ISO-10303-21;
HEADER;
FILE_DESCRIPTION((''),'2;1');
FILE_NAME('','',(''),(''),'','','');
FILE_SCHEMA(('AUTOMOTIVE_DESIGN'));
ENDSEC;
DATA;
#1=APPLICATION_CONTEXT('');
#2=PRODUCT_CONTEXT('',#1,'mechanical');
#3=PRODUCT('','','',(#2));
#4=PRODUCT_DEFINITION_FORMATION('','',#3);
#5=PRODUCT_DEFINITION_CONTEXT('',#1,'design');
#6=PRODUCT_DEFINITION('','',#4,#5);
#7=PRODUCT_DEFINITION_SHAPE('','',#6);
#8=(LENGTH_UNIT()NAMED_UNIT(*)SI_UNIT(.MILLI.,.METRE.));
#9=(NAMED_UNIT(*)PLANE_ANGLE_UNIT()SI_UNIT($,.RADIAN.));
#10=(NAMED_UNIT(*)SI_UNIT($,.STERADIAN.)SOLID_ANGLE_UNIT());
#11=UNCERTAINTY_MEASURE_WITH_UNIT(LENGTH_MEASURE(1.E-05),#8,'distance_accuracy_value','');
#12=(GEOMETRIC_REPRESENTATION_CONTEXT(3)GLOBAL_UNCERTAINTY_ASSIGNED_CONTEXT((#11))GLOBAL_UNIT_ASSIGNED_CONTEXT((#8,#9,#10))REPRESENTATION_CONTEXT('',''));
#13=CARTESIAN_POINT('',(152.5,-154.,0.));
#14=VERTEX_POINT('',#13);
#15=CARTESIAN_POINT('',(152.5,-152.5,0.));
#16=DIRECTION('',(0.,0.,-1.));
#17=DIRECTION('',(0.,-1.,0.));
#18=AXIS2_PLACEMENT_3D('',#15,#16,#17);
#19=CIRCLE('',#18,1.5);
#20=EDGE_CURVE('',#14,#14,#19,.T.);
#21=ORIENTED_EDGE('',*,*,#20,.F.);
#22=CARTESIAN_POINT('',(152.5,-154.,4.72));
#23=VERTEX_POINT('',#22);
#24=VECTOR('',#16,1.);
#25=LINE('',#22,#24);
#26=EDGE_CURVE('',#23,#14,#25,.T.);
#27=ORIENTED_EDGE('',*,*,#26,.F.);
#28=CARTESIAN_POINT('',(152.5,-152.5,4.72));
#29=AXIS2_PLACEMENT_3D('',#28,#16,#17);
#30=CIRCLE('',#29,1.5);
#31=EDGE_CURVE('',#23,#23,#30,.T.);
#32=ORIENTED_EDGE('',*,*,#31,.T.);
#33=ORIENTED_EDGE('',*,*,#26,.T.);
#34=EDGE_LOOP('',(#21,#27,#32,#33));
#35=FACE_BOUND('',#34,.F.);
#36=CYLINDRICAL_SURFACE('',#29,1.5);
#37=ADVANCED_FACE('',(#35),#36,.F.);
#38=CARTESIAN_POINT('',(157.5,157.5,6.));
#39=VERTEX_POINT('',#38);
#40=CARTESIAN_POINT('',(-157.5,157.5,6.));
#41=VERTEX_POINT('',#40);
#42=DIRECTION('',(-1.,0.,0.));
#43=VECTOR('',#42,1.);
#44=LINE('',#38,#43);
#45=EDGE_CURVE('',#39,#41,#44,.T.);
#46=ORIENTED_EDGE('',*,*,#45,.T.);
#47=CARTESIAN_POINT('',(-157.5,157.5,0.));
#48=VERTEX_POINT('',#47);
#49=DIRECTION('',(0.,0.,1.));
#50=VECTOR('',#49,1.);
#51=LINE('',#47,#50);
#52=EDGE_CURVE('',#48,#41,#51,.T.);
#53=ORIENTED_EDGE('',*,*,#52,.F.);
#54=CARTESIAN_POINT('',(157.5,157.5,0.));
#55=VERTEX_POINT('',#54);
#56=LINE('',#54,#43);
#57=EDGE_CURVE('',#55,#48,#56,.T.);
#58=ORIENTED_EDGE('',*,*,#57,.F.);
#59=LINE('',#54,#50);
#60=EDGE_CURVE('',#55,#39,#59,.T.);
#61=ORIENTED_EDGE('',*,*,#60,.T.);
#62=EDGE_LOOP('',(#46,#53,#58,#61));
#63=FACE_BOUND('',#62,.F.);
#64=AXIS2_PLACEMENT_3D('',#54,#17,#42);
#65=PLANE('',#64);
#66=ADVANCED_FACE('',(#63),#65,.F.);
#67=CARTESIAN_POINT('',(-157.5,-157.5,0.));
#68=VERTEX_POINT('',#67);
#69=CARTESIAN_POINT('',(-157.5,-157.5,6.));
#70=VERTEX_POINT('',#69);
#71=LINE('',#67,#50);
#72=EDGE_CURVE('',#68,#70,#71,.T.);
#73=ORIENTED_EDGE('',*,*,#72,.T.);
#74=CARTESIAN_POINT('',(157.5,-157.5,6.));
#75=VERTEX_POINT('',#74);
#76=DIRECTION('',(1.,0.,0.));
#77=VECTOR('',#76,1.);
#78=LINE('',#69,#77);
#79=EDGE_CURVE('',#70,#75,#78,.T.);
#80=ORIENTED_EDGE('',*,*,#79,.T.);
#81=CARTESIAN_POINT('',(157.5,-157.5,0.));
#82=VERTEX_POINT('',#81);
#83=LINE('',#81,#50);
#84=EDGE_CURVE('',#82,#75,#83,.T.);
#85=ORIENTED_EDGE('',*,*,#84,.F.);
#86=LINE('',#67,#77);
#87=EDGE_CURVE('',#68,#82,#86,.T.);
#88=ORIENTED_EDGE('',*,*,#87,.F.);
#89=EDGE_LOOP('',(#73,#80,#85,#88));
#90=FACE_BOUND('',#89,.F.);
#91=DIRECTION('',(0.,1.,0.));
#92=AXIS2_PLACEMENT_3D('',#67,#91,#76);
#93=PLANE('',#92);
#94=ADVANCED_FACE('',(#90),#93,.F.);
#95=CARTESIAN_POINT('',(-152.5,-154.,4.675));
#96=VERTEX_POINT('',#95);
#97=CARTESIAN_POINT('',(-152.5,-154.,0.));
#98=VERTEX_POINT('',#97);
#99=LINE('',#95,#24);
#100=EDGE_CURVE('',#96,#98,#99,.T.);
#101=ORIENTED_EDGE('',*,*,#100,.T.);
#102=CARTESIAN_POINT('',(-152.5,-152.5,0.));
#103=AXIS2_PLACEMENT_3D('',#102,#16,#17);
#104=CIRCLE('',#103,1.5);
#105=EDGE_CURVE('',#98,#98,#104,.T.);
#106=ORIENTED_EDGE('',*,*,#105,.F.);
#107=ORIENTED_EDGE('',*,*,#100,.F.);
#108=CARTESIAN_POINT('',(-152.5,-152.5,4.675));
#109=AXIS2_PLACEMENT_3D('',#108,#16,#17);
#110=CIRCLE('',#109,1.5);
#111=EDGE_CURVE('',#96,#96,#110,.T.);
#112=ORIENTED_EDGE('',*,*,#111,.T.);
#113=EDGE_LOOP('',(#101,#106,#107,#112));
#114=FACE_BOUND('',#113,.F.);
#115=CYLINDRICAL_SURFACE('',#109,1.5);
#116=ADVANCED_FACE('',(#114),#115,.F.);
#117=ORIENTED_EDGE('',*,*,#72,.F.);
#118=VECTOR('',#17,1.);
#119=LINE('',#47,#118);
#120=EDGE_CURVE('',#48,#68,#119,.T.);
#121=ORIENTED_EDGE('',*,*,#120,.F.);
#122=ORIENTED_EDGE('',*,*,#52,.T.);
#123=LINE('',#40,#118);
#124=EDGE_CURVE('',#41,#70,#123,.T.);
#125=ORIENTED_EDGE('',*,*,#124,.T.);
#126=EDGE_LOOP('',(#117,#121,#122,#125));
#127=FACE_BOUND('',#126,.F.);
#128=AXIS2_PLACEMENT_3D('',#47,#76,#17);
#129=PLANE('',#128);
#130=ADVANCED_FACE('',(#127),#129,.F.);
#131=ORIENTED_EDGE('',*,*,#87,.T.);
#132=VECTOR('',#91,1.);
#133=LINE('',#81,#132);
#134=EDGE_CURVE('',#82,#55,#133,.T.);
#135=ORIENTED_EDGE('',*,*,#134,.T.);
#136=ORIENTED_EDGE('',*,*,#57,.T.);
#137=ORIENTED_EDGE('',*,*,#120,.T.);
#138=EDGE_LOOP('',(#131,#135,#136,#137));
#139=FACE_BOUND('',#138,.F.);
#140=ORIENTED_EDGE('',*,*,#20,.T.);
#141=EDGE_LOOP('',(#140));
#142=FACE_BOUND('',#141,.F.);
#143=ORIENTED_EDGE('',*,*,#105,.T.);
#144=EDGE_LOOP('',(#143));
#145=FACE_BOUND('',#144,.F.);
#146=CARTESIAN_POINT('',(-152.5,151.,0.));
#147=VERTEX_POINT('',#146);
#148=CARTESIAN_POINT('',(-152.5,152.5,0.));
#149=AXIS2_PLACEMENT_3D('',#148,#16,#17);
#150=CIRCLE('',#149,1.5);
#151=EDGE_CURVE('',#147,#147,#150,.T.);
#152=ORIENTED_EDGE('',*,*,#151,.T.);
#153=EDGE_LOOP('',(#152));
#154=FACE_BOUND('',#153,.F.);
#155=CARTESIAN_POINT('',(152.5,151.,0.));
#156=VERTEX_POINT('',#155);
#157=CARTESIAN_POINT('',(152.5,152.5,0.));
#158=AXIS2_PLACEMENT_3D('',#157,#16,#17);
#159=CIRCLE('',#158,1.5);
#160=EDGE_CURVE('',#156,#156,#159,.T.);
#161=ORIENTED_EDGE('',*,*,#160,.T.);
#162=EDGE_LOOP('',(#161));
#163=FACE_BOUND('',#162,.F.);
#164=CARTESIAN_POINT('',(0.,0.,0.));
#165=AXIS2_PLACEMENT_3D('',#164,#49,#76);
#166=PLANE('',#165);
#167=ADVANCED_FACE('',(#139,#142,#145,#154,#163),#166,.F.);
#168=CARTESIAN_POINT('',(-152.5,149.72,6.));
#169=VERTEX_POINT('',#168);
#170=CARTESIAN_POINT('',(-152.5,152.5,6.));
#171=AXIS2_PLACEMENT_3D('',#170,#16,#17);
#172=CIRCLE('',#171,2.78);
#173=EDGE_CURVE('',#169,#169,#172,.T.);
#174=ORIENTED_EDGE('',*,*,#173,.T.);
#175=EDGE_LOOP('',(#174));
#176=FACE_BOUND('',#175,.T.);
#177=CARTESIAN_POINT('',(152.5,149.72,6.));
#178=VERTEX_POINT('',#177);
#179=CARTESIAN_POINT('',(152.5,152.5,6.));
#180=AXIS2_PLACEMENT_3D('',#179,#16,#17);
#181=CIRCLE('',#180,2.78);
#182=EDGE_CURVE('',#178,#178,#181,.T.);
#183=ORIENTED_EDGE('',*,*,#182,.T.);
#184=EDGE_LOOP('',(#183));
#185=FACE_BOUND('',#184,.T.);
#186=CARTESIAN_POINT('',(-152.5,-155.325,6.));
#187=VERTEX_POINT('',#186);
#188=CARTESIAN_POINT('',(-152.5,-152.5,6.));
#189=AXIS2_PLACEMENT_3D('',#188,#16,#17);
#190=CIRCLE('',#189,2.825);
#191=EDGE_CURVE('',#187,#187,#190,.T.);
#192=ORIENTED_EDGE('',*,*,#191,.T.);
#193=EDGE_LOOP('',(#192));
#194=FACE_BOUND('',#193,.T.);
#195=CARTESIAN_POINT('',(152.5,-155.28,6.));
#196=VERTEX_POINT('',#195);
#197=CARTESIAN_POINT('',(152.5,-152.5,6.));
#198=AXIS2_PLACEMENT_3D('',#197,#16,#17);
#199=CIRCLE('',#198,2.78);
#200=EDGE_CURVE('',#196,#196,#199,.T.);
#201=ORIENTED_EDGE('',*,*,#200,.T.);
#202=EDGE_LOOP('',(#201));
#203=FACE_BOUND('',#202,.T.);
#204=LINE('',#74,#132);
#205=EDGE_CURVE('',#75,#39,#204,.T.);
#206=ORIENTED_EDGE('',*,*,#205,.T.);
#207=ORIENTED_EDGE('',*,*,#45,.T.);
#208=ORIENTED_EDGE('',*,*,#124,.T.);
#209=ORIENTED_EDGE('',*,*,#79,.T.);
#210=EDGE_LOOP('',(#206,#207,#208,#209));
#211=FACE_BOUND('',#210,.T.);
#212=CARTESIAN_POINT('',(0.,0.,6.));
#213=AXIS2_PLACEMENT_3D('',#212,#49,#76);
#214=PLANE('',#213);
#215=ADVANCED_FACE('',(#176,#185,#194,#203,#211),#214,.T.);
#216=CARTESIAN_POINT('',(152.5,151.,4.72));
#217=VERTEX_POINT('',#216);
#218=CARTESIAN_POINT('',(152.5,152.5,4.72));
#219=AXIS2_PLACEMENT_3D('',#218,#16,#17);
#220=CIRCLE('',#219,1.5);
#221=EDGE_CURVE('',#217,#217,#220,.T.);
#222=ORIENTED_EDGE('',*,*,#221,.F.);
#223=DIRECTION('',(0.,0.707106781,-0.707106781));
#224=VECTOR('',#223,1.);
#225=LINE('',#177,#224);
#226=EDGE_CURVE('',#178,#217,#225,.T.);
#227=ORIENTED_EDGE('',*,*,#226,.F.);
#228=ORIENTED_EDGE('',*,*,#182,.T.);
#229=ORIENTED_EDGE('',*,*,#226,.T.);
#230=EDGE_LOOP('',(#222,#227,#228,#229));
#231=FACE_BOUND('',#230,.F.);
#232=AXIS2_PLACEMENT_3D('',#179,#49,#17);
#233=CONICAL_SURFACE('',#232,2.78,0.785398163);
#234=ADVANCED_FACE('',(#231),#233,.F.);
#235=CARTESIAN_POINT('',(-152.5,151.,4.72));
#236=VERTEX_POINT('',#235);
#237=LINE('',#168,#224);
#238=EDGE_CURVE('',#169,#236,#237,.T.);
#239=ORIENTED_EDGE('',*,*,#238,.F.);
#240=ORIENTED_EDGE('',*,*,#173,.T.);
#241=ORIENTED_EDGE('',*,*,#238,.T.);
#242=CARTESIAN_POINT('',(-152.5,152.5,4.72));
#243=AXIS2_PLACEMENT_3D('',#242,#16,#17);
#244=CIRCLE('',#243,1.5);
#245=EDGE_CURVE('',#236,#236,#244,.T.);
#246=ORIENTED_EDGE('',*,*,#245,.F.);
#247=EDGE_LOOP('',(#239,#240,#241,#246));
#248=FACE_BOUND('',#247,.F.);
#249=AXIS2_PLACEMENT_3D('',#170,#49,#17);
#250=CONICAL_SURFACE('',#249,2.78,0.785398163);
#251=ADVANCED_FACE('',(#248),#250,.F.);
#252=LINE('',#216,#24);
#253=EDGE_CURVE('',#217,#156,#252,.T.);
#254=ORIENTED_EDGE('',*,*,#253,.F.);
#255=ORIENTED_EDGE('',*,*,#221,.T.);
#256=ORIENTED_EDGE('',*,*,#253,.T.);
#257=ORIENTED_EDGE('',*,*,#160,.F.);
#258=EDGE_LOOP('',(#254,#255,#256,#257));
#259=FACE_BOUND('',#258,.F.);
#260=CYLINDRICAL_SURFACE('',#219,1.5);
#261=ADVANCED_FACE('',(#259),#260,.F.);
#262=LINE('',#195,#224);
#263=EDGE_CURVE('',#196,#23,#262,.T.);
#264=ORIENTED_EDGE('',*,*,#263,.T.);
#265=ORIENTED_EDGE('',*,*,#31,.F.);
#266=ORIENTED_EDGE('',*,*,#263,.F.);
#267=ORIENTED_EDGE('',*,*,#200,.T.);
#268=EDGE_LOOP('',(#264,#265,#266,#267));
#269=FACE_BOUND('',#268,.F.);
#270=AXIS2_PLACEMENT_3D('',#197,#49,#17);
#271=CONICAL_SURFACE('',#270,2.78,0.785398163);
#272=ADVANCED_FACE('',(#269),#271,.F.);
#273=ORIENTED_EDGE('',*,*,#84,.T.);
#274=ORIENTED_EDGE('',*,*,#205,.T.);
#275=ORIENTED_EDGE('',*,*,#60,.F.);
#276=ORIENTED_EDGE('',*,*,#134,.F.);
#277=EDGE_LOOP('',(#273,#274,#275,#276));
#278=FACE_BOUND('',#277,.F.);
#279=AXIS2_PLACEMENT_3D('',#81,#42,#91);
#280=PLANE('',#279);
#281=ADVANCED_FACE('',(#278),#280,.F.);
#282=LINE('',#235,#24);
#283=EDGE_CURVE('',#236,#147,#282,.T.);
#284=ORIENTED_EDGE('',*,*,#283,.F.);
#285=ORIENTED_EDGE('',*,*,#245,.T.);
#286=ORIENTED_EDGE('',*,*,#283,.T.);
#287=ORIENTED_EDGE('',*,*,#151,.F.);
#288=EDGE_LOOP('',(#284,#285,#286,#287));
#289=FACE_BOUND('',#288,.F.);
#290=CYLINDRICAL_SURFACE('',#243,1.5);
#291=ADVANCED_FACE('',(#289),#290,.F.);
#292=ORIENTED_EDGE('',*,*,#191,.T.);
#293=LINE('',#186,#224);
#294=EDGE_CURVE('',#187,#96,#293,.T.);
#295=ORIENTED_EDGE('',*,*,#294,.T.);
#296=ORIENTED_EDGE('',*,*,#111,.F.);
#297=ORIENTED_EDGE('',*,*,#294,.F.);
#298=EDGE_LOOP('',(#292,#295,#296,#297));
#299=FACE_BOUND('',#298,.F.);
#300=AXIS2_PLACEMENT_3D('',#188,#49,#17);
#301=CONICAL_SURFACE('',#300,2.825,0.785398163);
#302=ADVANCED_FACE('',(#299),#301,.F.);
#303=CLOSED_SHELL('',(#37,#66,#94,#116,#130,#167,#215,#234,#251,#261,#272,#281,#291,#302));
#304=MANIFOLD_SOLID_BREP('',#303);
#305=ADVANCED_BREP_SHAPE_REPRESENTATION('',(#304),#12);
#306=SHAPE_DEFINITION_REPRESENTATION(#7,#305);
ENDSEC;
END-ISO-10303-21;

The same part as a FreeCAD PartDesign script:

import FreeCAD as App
import Part
import Sketcher
from FreeCAD import Vector
Q = App.Units.Quantity

doc = App.newDocument("Part")
params = doc.addObject("Spreadsheet::Sheet", "Params")
for row, (alias, value) in enumerate([
    ("sketch1_width", "315 mm"),
    ("pad1_length", "6 mm"),
    ("sketch2_diameter", "3 mm"),
    ("hole_diameter", "3 mm"),
    ("hole_csink_diameter", "5.65 mm"),
    ("sketch3_diameter", "3 mm"),
    ("hole2_diameter", "3 mm"),
    ("hole2_csink_diameter", "5.56 mm"),
    ("sketch4_diameter", "3 mm"),
    ("hole3_diameter", "3 mm"),
    ("hole3_csink_diameter", "5.56 mm"),
    ("sketch5_diameter", "3 mm"),
    ("hole4_diameter", "3 mm"),
    ("hole4_csink_diameter", "5.56 mm"),
], start=1):
    params.set(f"A{row}", alias)
    params.set(f"B{row}", "=" + value)
    params.setAlias(f"B{row}", alias)

body = doc.addObject("PartDesign::Body", "Body")

# Sketch on XY plane
sketch1 = body.newObject("Sketcher::SketchObject", "Sketch")
sketch1.AttachmentSupport = (doc.getObject("XY_Plane"), [""])
sketch1.MapMode = "FlatFace"
sketch1.addGeometry(Part.LineSegment(Vector(-157.5, 157.5, 0), Vector(-157.5, -157.5, 0)), False)
sketch1.addGeometry(Part.LineSegment(Vector(-157.5, -157.5, 0), Vector(157.5, -157.5, 0)), False)
sketch1.addGeometry(Part.LineSegment(Vector(157.5, -157.5, 0), Vector(157.5, 157.5, 0)), False)
sketch1.addGeometry(Part.LineSegment(Vector(157.5, 157.5, 0), Vector(-157.5, 157.5, 0)), False)
sketch1.addConstraint(Sketcher.Constraint("Coincident", 0, 2, 1, 1))
sketch1.addConstraint(Sketcher.Constraint("Coincident", 1, 2, 2, 1))
sketch1.addConstraint(Sketcher.Constraint("Coincident", 2, 2, 3, 1))
sketch1.addConstraint(Sketcher.Constraint("Coincident", 3, 2, 0, 1))
sketch1.addConstraint(Sketcher.Constraint("Vertical", 0))
sketch1.addConstraint(Sketcher.Constraint("Horizontal", 1))
sketch1.addConstraint(Sketcher.Constraint("Vertical", 2))
sketch1.addConstraint(Sketcher.Constraint("Horizontal", 3))
sketch1.addConstraint(Sketcher.Constraint("Symmetric", 0, 2, 2, 2, -1, 1))
sketch1.addConstraint(Sketcher.Constraint("Equal", 3, 0))
sketch1.addConstraint(Sketcher.Constraint("DistanceX", 1, 1, 1, 2, Q("315 mm")))
sketch1.setExpression("Constraints[10]", "Params.sketch1_width")
pad1 = body.newObject("PartDesign::Pad", "Pad")
pad1.Profile = sketch1
pad1.setExpression("Length", "Params.pad1_length")

# Sketch on XY plane
sketch2 = body.newObject("Sketcher::SketchObject", "Sketch001")
sketch2.AttachmentSupport = (doc.getObject("XY_Plane"), [""])
sketch2.MapMode = "FlatFace"
sketch2.AttachmentOffset = App.Placement(Vector(0, 0, 6), App.Rotation())
sketch2.addGeometry(Part.Circle(Vector(-152.5, -152.5, 0), Vector(0, 0, 1), 1.5), False)
sketch2.addConstraint(Sketcher.Constraint("Diameter", 0, Q("3 mm")))
sketch2.addConstraint(Sketcher.Constraint("DistanceX", 0, 3, -1, 1, Q("152.5 mm")))
sketch2.addConstraint(Sketcher.Constraint("DistanceY", 0, 3, -1, 1, Q("152.5 mm")))
sketch2.setExpression("Constraints[0]", "Params.sketch2_diameter")
doc.recompute()
hole = body.newObject("PartDesign::Hole", "Hole")
hole.Profile = sketch2
hole.ThreadType = "None"
hole.setExpression("Diameter", "Params.hole_diameter")
hole.DepthType = "ThroughAll"
hole.HoleCutType = "Countersink"
hole.setExpression("HoleCutDiameter", "Params.hole_csink_diameter")
hole.HoleCutCountersinkAngle = 90

# Sketch on XY plane
sketch3 = body.newObject("Sketcher::SketchObject", "Sketch002")
sketch3.AttachmentSupport = (doc.getObject("XY_Plane"), [""])
sketch3.MapMode = "FlatFace"
sketch3.AttachmentOffset = App.Placement(Vector(0, 0, 6), App.Rotation())
sketch3.addGeometry(Part.Circle(Vector(152.5, -152.5, 0), Vector(0, 0, 1), 1.5), False)
sketch3.addConstraint(Sketcher.Constraint("Diameter", 0, Q("3 mm")))
sketch3.addConstraint(Sketcher.Constraint("DistanceX", -1, 1, 0, 3, Q("152.5 mm")))
sketch3.addConstraint(Sketcher.Constraint("DistanceY", 0, 3, -1, 1, Q("152.5 mm")))
sketch3.setExpression("Constraints[0]", "Params.sketch3_diameter")
doc.recompute()
hole2 = body.newObject("PartDesign::Hole", "Hole001")
hole2.Profile = sketch3
hole2.ThreadType = "None"
hole2.setExpression("Diameter", "Params.hole2_diameter")
hole2.DepthType = "ThroughAll"
hole2.HoleCutType = "Countersink"
hole2.setExpression("HoleCutDiameter", "Params.hole2_csink_diameter")
hole2.HoleCutCountersinkAngle = 90

# Sketch on XY plane
sketch4 = body.newObject("Sketcher::SketchObject", "Sketch003")
sketch4.AttachmentSupport = (doc.getObject("XY_Plane"), [""])
sketch4.MapMode = "FlatFace"
sketch4.AttachmentOffset = App.Placement(Vector(0, 0, 6), App.Rotation())
sketch4.addGeometry(Part.Circle(Vector(152.5, 152.5, 0), Vector(0, 0, 1), 1.5), False)
sketch4.addConstraint(Sketcher.Constraint("Diameter", 0, Q("3 mm")))
sketch4.addConstraint(Sketcher.Constraint("DistanceX", -1, 1, 0, 3, Q("152.5 mm")))
sketch4.addConstraint(Sketcher.Constraint("DistanceY", -1, 1, 0, 3, Q("152.5 mm")))
sketch4.setExpression("Constraints[0]", "Params.sketch4_diameter")
doc.recompute()
hole3 = body.newObject("PartDesign::Hole", "Hole002")
hole3.Profile = sketch4
hole3.ThreadType = "None"
hole3.setExpression("Diameter", "Params.hole3_diameter")
hole3.DepthType = "ThroughAll"
hole3.HoleCutType = "Countersink"
hole3.setExpression("HoleCutDiameter", "Params.hole3_csink_diameter")
hole3.HoleCutCountersinkAngle = 90

# Sketch on XY plane
sketch5 = body.newObject("Sketcher::SketchObject", "Sketch004")
sketch5.AttachmentSupport = (doc.getObject("XY_Plane"), [""])
sketch5.MapMode = "FlatFace"
sketch5.AttachmentOffset = App.Placement(Vector(0, 0, 6), App.Rotation())
sketch5.addGeometry(Part.Circle(Vector(-152.5, 152.5, 0), Vector(0, 0, 1), 1.5), False)
sketch5.addConstraint(Sketcher.Constraint("Diameter", 0, Q("3 mm")))
sketch5.addConstraint(Sketcher.Constraint("DistanceX", 0, 3, -1, 1, Q("152.5 mm")))
sketch5.addConstraint(Sketcher.Constraint("DistanceY", -1, 1, 0, 3, Q("152.5 mm")))
sketch5.setExpression("Constraints[0]", "Params.sketch5_diameter")
doc.recompute()
hole4 = body.newObject("PartDesign::Hole", "Hole003")
hole4.Profile = sketch5
hole4.ThreadType = "None"
hole4.setExpression("Diameter", "Params.hole4_diameter")
hole4.DepthType = "ThroughAll"
hole4.HoleCutType = "Countersink"
hole4.setExpression("HoleCutDiameter", "Params.hole4_csink_diameter")
hole4.HoleCutCountersinkAngle = 90

doc.recompute()
